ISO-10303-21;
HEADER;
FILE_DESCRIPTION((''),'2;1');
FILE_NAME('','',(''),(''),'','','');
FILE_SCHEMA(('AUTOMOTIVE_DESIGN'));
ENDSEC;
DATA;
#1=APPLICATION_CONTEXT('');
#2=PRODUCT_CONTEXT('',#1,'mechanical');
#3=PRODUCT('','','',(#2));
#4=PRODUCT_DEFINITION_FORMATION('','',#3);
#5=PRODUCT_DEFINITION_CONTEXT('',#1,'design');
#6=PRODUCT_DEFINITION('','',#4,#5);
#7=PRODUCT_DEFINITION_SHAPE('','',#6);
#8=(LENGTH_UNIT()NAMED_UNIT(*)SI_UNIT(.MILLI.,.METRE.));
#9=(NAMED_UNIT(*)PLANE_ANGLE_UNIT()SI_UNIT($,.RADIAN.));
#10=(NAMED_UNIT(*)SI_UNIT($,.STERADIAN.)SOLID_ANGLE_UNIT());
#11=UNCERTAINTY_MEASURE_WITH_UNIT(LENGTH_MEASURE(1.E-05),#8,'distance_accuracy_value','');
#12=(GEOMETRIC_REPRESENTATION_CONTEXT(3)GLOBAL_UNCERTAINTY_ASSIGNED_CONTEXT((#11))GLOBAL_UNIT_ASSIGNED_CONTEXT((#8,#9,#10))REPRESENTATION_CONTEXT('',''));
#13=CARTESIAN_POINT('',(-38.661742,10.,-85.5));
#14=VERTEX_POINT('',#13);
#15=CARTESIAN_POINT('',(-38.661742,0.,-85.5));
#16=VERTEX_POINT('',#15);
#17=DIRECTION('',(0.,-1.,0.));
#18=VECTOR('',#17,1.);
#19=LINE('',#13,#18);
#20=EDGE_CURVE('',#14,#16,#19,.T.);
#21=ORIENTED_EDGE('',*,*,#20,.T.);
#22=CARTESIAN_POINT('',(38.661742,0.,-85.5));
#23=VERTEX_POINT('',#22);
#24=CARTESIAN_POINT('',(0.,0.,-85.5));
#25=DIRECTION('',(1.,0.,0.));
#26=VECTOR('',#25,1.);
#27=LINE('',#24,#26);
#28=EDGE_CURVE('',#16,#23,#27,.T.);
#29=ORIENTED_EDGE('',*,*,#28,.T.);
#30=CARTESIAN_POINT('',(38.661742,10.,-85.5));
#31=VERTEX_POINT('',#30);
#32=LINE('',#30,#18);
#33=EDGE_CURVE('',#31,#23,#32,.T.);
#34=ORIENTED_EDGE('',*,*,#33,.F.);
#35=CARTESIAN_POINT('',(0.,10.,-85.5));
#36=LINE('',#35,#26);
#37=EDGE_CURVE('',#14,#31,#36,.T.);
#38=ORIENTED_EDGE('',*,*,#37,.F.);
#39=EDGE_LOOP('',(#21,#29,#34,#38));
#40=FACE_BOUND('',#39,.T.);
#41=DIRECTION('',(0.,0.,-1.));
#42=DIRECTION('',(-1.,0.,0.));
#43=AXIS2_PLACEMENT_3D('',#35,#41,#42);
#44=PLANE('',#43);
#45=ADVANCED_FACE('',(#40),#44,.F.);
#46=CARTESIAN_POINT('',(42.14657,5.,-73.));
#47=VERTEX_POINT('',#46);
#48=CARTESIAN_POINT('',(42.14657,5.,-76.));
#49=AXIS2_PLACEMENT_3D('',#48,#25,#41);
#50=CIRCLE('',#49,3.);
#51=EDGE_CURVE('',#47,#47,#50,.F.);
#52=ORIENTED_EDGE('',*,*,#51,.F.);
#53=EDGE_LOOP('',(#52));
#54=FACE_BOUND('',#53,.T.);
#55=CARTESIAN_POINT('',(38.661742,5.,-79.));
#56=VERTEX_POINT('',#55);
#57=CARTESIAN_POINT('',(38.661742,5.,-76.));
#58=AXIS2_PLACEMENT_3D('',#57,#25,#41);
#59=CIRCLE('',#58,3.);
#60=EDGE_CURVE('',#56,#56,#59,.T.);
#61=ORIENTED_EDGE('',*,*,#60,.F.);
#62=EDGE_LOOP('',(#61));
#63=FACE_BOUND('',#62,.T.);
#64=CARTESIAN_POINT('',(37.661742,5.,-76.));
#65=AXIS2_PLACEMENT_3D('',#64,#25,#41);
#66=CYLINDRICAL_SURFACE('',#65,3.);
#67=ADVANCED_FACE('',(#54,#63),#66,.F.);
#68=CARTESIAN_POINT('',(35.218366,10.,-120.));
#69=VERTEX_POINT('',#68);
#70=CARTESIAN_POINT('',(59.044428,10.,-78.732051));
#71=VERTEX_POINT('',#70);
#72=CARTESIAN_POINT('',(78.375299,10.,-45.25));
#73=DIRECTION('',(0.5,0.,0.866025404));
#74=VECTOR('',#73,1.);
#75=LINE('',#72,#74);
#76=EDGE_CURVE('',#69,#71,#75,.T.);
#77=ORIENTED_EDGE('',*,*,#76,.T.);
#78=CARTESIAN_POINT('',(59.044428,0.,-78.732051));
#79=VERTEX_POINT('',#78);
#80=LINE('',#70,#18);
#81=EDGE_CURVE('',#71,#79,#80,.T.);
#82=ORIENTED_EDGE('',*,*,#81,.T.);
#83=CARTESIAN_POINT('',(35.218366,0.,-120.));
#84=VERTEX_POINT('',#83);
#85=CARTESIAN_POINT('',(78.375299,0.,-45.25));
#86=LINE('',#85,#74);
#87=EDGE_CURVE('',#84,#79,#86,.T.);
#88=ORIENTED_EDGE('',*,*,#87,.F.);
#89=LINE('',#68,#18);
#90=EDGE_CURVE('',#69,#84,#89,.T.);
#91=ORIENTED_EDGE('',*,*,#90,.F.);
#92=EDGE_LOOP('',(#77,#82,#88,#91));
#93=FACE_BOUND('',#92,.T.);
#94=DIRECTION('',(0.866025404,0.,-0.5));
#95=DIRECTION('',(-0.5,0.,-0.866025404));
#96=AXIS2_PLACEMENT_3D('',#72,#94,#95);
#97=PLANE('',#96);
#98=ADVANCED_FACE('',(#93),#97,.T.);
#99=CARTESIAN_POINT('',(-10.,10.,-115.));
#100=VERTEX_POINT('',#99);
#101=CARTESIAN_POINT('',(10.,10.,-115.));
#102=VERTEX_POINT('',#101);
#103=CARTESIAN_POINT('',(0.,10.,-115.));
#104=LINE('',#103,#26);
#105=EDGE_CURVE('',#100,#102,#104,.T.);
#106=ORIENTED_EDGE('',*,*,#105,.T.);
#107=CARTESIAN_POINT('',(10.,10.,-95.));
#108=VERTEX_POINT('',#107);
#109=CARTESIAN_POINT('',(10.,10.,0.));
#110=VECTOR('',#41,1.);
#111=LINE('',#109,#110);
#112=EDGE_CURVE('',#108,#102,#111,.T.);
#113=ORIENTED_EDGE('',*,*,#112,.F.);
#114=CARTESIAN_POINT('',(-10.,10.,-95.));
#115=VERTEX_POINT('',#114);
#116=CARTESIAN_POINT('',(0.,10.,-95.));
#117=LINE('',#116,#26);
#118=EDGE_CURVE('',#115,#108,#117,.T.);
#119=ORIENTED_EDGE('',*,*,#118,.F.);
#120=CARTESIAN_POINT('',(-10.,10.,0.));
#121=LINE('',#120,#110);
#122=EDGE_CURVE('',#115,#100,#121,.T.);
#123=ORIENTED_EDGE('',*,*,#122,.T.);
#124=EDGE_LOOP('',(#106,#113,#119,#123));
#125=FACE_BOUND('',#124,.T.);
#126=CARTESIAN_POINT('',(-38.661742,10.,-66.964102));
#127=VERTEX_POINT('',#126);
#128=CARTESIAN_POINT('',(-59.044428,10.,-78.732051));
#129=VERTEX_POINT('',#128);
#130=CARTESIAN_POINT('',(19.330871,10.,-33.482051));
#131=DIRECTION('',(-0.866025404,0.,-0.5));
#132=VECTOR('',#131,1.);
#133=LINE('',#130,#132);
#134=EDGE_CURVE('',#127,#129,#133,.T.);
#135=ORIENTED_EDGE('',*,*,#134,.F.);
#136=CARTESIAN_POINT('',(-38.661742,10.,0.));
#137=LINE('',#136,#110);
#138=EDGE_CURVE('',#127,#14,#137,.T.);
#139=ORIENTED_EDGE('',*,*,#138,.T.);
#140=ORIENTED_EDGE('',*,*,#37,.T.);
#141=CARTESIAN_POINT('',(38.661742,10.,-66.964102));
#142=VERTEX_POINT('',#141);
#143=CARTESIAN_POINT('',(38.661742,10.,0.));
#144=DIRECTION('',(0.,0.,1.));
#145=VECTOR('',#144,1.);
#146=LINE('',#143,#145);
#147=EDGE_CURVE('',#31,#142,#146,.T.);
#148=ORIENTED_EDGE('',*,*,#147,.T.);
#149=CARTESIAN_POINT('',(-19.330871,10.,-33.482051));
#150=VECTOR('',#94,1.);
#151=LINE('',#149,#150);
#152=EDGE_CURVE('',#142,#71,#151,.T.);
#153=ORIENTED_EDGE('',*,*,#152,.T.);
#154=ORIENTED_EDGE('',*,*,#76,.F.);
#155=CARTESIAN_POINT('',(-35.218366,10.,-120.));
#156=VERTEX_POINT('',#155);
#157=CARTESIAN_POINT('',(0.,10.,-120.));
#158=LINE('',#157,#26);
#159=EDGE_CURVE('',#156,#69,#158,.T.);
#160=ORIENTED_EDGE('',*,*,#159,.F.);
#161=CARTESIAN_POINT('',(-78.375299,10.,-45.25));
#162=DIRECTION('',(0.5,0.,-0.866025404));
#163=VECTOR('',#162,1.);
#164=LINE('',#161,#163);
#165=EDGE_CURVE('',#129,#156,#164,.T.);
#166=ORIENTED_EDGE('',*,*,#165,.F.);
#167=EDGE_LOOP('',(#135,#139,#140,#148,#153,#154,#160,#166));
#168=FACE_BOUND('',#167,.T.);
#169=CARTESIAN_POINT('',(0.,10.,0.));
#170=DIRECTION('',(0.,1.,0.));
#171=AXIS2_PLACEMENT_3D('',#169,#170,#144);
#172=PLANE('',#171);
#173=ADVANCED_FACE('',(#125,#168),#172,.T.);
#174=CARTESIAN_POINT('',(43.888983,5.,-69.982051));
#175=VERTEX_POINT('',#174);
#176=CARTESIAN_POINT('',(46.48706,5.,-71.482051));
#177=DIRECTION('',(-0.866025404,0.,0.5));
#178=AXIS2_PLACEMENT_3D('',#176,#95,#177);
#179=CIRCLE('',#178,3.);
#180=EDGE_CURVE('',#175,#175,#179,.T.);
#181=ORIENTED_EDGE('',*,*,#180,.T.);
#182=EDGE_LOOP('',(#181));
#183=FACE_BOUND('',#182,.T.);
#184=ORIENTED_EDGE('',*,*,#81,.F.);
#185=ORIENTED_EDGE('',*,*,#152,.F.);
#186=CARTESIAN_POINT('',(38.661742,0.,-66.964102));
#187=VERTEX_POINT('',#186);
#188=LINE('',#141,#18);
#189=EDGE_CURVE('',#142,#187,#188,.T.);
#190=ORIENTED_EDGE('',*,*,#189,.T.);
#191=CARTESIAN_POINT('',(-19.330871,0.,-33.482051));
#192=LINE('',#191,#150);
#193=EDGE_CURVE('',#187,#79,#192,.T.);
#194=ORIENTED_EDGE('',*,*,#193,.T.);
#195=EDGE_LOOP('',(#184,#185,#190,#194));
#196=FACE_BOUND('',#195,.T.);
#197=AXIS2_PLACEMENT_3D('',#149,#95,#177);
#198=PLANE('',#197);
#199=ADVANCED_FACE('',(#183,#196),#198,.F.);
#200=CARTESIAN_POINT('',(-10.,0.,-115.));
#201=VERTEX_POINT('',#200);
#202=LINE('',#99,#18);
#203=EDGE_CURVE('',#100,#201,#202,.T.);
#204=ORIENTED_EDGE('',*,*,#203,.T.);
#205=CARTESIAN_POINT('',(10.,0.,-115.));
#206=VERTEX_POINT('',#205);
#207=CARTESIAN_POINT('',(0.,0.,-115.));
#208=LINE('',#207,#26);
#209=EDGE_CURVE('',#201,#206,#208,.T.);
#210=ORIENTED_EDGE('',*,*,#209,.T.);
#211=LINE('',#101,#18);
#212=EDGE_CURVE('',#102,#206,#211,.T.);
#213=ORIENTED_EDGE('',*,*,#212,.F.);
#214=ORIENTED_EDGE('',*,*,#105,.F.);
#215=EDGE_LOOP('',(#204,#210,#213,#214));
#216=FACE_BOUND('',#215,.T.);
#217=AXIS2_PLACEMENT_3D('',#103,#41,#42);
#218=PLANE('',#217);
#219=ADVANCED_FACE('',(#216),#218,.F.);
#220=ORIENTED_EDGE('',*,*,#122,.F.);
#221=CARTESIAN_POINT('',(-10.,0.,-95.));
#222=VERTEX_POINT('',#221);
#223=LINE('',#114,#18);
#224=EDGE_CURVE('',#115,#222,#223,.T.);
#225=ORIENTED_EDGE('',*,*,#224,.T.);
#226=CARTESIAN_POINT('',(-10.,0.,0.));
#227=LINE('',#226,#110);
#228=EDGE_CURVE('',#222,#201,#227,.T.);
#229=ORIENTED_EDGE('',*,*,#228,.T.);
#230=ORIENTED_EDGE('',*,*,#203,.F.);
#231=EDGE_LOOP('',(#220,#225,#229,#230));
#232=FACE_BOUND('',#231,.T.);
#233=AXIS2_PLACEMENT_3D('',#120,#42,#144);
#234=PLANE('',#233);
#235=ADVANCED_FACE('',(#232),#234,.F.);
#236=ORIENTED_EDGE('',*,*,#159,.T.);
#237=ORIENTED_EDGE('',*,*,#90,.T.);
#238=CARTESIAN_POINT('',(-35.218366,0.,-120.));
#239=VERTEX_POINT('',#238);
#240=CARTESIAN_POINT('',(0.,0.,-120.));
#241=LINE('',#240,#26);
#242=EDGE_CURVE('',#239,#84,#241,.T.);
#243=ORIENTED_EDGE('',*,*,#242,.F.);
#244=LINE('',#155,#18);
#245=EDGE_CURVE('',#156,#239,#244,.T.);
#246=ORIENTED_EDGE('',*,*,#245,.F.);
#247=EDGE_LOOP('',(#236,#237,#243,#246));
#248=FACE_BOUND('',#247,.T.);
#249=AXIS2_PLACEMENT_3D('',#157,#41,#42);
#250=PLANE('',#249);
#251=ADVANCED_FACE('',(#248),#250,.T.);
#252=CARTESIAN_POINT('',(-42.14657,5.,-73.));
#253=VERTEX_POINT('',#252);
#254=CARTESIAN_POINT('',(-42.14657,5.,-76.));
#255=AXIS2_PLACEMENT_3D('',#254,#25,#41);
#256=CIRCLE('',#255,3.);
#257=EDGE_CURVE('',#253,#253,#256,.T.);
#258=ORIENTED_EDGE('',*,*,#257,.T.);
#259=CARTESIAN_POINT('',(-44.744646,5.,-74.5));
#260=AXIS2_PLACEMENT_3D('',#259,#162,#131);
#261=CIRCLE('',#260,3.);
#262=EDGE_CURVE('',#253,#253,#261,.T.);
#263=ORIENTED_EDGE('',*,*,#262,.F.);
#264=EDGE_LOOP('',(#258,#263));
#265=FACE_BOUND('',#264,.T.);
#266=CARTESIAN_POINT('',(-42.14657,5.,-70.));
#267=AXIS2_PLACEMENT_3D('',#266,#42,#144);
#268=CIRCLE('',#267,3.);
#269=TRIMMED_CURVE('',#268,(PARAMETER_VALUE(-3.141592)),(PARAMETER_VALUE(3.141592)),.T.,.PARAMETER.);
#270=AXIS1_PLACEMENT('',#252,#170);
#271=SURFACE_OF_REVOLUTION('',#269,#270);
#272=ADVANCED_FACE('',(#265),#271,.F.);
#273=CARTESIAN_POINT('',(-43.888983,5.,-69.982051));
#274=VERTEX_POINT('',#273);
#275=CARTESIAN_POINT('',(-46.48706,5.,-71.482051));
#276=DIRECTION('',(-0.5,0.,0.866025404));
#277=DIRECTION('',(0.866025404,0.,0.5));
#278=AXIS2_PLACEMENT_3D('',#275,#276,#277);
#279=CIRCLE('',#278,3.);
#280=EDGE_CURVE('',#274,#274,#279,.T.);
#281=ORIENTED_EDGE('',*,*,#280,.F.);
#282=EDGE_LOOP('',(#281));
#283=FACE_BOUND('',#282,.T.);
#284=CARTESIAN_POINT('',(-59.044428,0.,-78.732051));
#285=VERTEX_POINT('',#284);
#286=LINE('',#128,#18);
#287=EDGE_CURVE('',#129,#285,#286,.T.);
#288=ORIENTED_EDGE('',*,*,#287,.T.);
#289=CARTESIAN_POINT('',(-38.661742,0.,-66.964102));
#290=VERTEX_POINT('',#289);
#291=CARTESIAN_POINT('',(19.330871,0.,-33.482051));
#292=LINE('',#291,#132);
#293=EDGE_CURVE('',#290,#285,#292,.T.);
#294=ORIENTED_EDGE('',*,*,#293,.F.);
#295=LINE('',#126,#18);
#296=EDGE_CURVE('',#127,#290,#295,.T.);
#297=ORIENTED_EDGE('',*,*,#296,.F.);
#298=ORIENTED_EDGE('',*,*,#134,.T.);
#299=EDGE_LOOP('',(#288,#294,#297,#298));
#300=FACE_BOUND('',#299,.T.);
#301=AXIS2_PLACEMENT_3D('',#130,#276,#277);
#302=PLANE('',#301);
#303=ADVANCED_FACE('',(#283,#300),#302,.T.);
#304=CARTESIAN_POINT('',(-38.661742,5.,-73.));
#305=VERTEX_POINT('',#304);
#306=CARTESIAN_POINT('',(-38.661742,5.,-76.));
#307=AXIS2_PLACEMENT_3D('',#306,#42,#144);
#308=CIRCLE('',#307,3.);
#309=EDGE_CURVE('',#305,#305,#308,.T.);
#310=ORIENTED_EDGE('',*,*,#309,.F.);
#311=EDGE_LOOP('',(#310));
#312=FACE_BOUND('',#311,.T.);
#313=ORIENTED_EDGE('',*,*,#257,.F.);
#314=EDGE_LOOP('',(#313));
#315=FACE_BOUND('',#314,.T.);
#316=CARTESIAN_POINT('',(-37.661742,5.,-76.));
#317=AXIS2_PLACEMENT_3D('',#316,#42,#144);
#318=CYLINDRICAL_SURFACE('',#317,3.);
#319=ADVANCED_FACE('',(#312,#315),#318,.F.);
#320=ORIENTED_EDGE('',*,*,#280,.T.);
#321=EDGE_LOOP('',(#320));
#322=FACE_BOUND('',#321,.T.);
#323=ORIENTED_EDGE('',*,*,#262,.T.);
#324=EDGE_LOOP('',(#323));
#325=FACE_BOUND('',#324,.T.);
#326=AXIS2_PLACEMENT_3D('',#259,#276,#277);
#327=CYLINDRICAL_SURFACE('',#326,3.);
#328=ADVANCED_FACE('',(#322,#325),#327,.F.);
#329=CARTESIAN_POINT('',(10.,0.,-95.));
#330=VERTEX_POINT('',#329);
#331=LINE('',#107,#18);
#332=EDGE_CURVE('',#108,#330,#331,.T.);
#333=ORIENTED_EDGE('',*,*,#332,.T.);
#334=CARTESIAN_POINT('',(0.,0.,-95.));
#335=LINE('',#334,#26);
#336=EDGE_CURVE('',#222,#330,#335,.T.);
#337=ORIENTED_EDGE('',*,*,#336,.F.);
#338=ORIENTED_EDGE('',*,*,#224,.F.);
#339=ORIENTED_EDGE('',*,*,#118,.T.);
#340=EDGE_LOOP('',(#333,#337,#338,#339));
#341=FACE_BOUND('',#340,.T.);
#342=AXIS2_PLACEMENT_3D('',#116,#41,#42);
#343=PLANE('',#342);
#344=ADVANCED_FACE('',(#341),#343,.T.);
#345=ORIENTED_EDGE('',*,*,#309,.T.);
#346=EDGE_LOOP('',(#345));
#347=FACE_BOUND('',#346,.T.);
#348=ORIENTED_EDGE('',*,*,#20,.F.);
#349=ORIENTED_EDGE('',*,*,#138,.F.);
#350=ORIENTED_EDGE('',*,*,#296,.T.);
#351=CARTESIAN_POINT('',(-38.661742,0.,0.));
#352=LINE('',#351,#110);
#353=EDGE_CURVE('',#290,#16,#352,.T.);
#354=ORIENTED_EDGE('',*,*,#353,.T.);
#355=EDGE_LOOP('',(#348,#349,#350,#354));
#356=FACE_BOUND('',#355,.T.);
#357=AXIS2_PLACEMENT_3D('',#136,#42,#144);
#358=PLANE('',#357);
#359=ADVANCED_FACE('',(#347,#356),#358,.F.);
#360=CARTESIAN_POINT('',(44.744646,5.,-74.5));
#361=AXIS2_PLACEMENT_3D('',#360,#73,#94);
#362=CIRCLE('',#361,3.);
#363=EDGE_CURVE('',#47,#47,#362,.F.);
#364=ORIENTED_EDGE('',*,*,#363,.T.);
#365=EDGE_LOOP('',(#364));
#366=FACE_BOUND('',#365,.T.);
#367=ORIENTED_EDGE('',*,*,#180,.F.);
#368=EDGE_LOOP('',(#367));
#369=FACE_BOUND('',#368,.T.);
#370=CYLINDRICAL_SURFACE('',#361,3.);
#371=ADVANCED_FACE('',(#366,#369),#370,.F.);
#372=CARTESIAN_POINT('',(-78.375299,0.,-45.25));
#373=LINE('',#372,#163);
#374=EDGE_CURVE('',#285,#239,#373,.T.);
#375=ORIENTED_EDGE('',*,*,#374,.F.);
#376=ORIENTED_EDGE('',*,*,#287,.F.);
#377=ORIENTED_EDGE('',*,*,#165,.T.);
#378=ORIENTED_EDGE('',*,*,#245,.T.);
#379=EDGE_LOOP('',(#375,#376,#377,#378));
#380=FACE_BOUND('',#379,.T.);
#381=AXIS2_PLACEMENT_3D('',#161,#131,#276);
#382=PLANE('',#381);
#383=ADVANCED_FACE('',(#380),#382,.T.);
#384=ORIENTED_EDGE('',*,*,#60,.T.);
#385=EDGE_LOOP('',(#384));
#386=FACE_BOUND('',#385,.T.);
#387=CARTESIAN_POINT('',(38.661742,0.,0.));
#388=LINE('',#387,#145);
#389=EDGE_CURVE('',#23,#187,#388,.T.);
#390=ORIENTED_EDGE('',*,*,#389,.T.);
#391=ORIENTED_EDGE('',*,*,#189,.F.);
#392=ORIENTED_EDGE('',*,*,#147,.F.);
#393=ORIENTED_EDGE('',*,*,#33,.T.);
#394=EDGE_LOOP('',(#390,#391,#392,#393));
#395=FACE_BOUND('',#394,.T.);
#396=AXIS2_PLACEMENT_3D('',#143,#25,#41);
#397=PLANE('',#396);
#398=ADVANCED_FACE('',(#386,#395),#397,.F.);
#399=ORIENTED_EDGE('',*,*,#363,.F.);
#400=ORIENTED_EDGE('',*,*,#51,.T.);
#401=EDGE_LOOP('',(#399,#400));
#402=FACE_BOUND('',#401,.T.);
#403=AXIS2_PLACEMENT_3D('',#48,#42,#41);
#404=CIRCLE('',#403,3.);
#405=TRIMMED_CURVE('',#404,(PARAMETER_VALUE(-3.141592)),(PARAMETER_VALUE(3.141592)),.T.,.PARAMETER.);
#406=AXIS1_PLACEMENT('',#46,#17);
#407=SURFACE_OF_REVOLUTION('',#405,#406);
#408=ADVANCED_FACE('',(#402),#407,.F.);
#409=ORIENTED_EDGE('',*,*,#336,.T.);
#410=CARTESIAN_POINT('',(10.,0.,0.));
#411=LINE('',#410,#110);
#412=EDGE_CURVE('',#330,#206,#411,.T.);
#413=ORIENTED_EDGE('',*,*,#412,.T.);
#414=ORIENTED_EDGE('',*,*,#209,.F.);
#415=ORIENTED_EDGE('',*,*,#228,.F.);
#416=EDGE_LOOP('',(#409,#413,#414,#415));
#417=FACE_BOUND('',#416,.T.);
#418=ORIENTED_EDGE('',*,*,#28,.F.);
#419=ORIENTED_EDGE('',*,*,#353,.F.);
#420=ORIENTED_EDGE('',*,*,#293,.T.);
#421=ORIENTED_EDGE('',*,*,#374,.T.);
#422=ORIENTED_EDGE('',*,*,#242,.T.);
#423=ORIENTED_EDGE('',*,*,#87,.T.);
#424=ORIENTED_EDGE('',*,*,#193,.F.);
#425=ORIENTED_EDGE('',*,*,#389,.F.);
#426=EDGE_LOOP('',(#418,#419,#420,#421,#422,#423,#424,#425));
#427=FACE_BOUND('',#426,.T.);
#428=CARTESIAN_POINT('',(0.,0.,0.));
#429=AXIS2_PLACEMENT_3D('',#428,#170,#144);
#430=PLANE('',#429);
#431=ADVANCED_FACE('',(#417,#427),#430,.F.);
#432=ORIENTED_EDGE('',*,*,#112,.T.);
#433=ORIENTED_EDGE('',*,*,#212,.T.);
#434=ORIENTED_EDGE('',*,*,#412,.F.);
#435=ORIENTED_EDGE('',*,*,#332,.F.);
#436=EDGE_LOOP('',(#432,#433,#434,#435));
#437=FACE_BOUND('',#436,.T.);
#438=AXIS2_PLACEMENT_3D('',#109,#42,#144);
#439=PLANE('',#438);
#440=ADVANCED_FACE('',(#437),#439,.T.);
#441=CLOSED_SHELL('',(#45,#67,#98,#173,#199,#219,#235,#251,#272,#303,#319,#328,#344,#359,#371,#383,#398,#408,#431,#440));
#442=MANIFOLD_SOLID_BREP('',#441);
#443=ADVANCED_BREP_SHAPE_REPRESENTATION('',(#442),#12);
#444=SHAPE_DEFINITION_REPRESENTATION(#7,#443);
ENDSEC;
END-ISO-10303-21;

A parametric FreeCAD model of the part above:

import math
import FreeCAD as App
import Part
import Sketcher
from FreeCAD import Vector
Q = App.Units.Quantity

doc = App.newDocument("Part")
params = doc.addObject("Spreadsheet::Sheet", "Params")
for row, (alias, value) in enumerate([
    ("sketch1_width", "20 mm"),
    ("sketch1_length", "5 mm"),
    ("pad1_length", "10 mm"),
    ("sketch2_diameter", "6 mm"),
    ("sketch3_radius", "3 mm"),
], start=1):
    params.set(f"A{row}", alias)
    params.set(f"B{row}", "=" + value)
    params.setAlias(f"B{row}", alias)

body = doc.addObject("PartDesign::Body", "Body")

sketch1 = body.newObject("Sketcher::SketchObject", "Sketch")
sketch1.AttachmentSupport = (doc.getObject("XZ_Plane"), [""])
sketch1.MapMode = "FlatFace"
sketch1.addGeometry([
    Part.LineSegment(Vector(-59.044428, -78.732051, 0), Vector(-54.714301, -76.232051, 0)),
    Part.LineSegment(Vector(-54.714301, -76.232051, 0), Vector(-38.661742, -66.964102, 0)),
    Part.LineSegment(Vector(-38.661742, -66.964102, 0), Vector(-38.661742, -85.5, 0)),
    Part.LineSegment(Vector(-38.661742, -85.5, 0), Vector(38.661742, -85.5, 0)),
    Part.LineSegment(Vector(38.661742, -85.5, 0), Vector(38.661742, -66.964102, 0)),
    Part.LineSegment(Vector(38.661742, -66.964102, 0), Vector(54.714301, -76.232051, 0)),
    Part.LineSegment(Vector(54.714301, -76.232051, 0), Vector(59.044428, -78.732051, 0)),
    Part.LineSegment(Vector(59.044428, -78.732051, 0), Vector(35.218366, -120, 0)),
    Part.LineSegment(Vector(35.218366, -120, 0), Vector(-35.218366, -120, 0)),
    Part.LineSegment(Vector(-35.218366, -120, 0), Vector(-59.044428, -78.732051, 0)),
    Part.LineSegment(Vector(10, -95, 0), Vector(-10, -95, 0)),
    Part.LineSegment(Vector(-10, -95, 0), Vector(-10, -115, 0)),
    Part.LineSegment(Vector(-10, -115, 0), Vector(10, -115, 0)),
    Part.LineSegment(Vector(10, -115, 0), Vector(10, -95, 0)),
], False)
sketch1.addConstraint([
    Sketcher.Constraint("Coincident", 0, 2, 1, 1),
    Sketcher.Constraint("Coincident", 1, 2, 2, 1),
    Sketcher.Constraint("Coincident", 2, 2, 3, 1),
    Sketcher.Constraint("Coincident", 3, 2, 4, 1),
    Sketcher.Constraint("Coincident", 4, 2, 5, 1),
    Sketcher.Constraint("Coincident", 5, 2, 6, 1),
    Sketcher.Constraint("Coincident", 6, 2, 7, 1),
    Sketcher.Constraint("Coincident", 7, 2, 8, 1),
    Sketcher.Constraint("Coincident", 8, 2, 9, 1),
    Sketcher.Constraint("Coincident", 9, 2, 0, 1),
    Sketcher.Constraint("Coincident", 10, 2, 11, 1),
    Sketcher.Constraint("Coincident", 11, 2, 12, 1),
    Sketcher.Constraint("Coincident", 12, 2, 13, 1),
    Sketcher.Constraint("Coincident", 13, 2, 10, 1),
    Sketcher.Constraint("Vertical", 2),
    Sketcher.Constraint("Horizontal", 3),
    Sketcher.Constraint("Vertical", 4),
    Sketcher.Constraint("Horizontal", 8),
    Sketcher.Constraint("Horizontal", 10),
    Sketcher.Constraint("Vertical", 11),
    Sketcher.Constraint("Horizontal", 12),
    Sketcher.Constraint("Vertical", 13),
    Sketcher.Constraint("Symmetric", 1, 2, 4, 2, -2),
    Sketcher.Constraint("Symmetric", 0, 2, 5, 2, -2),
    Sketcher.Constraint("Symmetric", 6, 2, 9, 2, -2),
    Sketcher.Constraint("Parallel", 0, 1),
    Sketcher.Constraint("Perpendicular", 6, 7),
    Sketcher.Constraint("Perpendicular", 1, 9),
    Sketcher.Constraint("Equal", 12, 11),
    Sketcher.Constraint("DistanceX", 10, 2, 10, 1, Q("20 mm")),
    Sketcher.Constraint("Angle", 0, Q("30 deg")),
    Sketcher.Constraint("Distance", 0, Q("5 mm")),
    Sketcher.Constraint("DistanceY", 7, 2, -1, 1, Q("120 mm")),
    Sketcher.Constraint("DistanceX", 10, 2, -1, 1, Q("10 mm")),
    Sketcher.Constraint("DistanceY", 10, 2, -1, 1, Q("95 mm")),
    Sketcher.Constraint("DistanceY", 2, 2, -1, 1, Q("85.5 mm")),
    Sketcher.Constraint("DistanceY", 2, 2, 2, 1, Q("18.535898 mm")),
    Sketcher.Constraint("Distance", 1, Q("18.535898 mm")),
    Sketcher.Constraint("DistanceX", 0, 2, -1, 1, Q("54.714301 mm")),
])
sketch1.setExpression("Constraints[29]", "Params.sketch1_width")
sketch1.setExpression("Constraints[31]", "Params.sketch1_length")
pad1 = body.newObject("PartDesign::Pad", "Pad")
pad1.Profile = sketch1
pad1.setExpression("Length", "Params.pad1_length")
pad1.Reversed = True

sketch2 = body.newObject("Sketcher::SketchObject", "Sketch001")
sketch2.AttachmentSupport = (doc.getObject("YZ_Plane"), [""])
sketch2.MapMode = "FlatFace"
sketch2.AttachmentOffset = App.Placement(Vector(0, 0, -38.661742), App.Rotation())
sketch2.addGeometry(Part.Circle(Vector(5, -76, 0), Vector(0, 0, 1), 3), False)
sketch2.addConstraint([
    Sketcher.Constraint("Diameter", 0, Q("6 mm")),
    Sketcher.Constraint("DistanceX", -1, 1, 0, 3, Q("5 mm")),
    Sketcher.Constraint("DistanceY", 0, 3, -1, 1, Q("76 mm")),
])
sketch2.setExpression("Constraints[0]", "Params.sketch2_diameter")

sketch3 = body.newObject("Sketcher::SketchObject", "Sketch002")
sketch3.AttachmentSupport = (doc.getObject("XZ_Plane"), [""])
sketch3.MapMode = "FlatFace"
sketch3.AttachmentOffset = App.Placement(Vector(0, 0, -5), App.Rotation())
sketch3.addGeometry([
    Part.LineSegment(Vector(-38.661742, -76, 0), Vector(-42.14657, -76, 0)),
    Part.ArcOfCircle(Part.Circle(Vector(-42.14657, -73, 0), Vector(0, 0, 1), 3), math.radians(-150), math.radians(-90)),
    Part.LineSegment(Vector(-44.744646, -74.5, 0), Vector(-46.48706, -71.482051, 0)),
], False)
sketch3.addConstraint([
    Sketcher.Constraint("Tangent", 0, 2, 1, 2),
    Sketcher.Constraint("Tangent", 1, 1, 2, 1),
    Sketcher.Constraint("Horizontal", 0),
    Sketcher.Constraint("Radius", 1, Q("3 mm")),
    Sketcher.Constraint("Angle", 2, Q("120 deg")),
    Sketcher.Constraint("DistanceY", 1, 3, -1, 1, Q("73 mm")),
    Sketcher.Constraint("DistanceX", 0, 2, 0, 1, Q("3.484828 mm")),
    Sketcher.Constraint("DistanceX", 1, 3, -1, 1, Q("42.14657 mm")),
    Sketcher.Constraint("DistanceX", 2, 2, -1, 1, Q("46.48706 mm")),
])
sketch3.setExpression("Constraints[3]", "Params.sketch3_radius")
doc.recompute()

subtractivepipe = body.newObject("PartDesign::SubtractivePipe", "SubtractivePipe")
subtractivepipe.Profile = sketch2
subtractivepipe.Spine = (sketch3, ["Edge1", "Edge2", "Edge3"])
doc.recompute()

mirrored = body.newObject("PartDesign::Mirrored", "Mirrored")
mirrored.Originals = [subtractivepipe]
mirrored.MirrorPlane = (doc.getObject("YZ_Plane"), [""])
body.Tip = mirrored

doc.recompute()
